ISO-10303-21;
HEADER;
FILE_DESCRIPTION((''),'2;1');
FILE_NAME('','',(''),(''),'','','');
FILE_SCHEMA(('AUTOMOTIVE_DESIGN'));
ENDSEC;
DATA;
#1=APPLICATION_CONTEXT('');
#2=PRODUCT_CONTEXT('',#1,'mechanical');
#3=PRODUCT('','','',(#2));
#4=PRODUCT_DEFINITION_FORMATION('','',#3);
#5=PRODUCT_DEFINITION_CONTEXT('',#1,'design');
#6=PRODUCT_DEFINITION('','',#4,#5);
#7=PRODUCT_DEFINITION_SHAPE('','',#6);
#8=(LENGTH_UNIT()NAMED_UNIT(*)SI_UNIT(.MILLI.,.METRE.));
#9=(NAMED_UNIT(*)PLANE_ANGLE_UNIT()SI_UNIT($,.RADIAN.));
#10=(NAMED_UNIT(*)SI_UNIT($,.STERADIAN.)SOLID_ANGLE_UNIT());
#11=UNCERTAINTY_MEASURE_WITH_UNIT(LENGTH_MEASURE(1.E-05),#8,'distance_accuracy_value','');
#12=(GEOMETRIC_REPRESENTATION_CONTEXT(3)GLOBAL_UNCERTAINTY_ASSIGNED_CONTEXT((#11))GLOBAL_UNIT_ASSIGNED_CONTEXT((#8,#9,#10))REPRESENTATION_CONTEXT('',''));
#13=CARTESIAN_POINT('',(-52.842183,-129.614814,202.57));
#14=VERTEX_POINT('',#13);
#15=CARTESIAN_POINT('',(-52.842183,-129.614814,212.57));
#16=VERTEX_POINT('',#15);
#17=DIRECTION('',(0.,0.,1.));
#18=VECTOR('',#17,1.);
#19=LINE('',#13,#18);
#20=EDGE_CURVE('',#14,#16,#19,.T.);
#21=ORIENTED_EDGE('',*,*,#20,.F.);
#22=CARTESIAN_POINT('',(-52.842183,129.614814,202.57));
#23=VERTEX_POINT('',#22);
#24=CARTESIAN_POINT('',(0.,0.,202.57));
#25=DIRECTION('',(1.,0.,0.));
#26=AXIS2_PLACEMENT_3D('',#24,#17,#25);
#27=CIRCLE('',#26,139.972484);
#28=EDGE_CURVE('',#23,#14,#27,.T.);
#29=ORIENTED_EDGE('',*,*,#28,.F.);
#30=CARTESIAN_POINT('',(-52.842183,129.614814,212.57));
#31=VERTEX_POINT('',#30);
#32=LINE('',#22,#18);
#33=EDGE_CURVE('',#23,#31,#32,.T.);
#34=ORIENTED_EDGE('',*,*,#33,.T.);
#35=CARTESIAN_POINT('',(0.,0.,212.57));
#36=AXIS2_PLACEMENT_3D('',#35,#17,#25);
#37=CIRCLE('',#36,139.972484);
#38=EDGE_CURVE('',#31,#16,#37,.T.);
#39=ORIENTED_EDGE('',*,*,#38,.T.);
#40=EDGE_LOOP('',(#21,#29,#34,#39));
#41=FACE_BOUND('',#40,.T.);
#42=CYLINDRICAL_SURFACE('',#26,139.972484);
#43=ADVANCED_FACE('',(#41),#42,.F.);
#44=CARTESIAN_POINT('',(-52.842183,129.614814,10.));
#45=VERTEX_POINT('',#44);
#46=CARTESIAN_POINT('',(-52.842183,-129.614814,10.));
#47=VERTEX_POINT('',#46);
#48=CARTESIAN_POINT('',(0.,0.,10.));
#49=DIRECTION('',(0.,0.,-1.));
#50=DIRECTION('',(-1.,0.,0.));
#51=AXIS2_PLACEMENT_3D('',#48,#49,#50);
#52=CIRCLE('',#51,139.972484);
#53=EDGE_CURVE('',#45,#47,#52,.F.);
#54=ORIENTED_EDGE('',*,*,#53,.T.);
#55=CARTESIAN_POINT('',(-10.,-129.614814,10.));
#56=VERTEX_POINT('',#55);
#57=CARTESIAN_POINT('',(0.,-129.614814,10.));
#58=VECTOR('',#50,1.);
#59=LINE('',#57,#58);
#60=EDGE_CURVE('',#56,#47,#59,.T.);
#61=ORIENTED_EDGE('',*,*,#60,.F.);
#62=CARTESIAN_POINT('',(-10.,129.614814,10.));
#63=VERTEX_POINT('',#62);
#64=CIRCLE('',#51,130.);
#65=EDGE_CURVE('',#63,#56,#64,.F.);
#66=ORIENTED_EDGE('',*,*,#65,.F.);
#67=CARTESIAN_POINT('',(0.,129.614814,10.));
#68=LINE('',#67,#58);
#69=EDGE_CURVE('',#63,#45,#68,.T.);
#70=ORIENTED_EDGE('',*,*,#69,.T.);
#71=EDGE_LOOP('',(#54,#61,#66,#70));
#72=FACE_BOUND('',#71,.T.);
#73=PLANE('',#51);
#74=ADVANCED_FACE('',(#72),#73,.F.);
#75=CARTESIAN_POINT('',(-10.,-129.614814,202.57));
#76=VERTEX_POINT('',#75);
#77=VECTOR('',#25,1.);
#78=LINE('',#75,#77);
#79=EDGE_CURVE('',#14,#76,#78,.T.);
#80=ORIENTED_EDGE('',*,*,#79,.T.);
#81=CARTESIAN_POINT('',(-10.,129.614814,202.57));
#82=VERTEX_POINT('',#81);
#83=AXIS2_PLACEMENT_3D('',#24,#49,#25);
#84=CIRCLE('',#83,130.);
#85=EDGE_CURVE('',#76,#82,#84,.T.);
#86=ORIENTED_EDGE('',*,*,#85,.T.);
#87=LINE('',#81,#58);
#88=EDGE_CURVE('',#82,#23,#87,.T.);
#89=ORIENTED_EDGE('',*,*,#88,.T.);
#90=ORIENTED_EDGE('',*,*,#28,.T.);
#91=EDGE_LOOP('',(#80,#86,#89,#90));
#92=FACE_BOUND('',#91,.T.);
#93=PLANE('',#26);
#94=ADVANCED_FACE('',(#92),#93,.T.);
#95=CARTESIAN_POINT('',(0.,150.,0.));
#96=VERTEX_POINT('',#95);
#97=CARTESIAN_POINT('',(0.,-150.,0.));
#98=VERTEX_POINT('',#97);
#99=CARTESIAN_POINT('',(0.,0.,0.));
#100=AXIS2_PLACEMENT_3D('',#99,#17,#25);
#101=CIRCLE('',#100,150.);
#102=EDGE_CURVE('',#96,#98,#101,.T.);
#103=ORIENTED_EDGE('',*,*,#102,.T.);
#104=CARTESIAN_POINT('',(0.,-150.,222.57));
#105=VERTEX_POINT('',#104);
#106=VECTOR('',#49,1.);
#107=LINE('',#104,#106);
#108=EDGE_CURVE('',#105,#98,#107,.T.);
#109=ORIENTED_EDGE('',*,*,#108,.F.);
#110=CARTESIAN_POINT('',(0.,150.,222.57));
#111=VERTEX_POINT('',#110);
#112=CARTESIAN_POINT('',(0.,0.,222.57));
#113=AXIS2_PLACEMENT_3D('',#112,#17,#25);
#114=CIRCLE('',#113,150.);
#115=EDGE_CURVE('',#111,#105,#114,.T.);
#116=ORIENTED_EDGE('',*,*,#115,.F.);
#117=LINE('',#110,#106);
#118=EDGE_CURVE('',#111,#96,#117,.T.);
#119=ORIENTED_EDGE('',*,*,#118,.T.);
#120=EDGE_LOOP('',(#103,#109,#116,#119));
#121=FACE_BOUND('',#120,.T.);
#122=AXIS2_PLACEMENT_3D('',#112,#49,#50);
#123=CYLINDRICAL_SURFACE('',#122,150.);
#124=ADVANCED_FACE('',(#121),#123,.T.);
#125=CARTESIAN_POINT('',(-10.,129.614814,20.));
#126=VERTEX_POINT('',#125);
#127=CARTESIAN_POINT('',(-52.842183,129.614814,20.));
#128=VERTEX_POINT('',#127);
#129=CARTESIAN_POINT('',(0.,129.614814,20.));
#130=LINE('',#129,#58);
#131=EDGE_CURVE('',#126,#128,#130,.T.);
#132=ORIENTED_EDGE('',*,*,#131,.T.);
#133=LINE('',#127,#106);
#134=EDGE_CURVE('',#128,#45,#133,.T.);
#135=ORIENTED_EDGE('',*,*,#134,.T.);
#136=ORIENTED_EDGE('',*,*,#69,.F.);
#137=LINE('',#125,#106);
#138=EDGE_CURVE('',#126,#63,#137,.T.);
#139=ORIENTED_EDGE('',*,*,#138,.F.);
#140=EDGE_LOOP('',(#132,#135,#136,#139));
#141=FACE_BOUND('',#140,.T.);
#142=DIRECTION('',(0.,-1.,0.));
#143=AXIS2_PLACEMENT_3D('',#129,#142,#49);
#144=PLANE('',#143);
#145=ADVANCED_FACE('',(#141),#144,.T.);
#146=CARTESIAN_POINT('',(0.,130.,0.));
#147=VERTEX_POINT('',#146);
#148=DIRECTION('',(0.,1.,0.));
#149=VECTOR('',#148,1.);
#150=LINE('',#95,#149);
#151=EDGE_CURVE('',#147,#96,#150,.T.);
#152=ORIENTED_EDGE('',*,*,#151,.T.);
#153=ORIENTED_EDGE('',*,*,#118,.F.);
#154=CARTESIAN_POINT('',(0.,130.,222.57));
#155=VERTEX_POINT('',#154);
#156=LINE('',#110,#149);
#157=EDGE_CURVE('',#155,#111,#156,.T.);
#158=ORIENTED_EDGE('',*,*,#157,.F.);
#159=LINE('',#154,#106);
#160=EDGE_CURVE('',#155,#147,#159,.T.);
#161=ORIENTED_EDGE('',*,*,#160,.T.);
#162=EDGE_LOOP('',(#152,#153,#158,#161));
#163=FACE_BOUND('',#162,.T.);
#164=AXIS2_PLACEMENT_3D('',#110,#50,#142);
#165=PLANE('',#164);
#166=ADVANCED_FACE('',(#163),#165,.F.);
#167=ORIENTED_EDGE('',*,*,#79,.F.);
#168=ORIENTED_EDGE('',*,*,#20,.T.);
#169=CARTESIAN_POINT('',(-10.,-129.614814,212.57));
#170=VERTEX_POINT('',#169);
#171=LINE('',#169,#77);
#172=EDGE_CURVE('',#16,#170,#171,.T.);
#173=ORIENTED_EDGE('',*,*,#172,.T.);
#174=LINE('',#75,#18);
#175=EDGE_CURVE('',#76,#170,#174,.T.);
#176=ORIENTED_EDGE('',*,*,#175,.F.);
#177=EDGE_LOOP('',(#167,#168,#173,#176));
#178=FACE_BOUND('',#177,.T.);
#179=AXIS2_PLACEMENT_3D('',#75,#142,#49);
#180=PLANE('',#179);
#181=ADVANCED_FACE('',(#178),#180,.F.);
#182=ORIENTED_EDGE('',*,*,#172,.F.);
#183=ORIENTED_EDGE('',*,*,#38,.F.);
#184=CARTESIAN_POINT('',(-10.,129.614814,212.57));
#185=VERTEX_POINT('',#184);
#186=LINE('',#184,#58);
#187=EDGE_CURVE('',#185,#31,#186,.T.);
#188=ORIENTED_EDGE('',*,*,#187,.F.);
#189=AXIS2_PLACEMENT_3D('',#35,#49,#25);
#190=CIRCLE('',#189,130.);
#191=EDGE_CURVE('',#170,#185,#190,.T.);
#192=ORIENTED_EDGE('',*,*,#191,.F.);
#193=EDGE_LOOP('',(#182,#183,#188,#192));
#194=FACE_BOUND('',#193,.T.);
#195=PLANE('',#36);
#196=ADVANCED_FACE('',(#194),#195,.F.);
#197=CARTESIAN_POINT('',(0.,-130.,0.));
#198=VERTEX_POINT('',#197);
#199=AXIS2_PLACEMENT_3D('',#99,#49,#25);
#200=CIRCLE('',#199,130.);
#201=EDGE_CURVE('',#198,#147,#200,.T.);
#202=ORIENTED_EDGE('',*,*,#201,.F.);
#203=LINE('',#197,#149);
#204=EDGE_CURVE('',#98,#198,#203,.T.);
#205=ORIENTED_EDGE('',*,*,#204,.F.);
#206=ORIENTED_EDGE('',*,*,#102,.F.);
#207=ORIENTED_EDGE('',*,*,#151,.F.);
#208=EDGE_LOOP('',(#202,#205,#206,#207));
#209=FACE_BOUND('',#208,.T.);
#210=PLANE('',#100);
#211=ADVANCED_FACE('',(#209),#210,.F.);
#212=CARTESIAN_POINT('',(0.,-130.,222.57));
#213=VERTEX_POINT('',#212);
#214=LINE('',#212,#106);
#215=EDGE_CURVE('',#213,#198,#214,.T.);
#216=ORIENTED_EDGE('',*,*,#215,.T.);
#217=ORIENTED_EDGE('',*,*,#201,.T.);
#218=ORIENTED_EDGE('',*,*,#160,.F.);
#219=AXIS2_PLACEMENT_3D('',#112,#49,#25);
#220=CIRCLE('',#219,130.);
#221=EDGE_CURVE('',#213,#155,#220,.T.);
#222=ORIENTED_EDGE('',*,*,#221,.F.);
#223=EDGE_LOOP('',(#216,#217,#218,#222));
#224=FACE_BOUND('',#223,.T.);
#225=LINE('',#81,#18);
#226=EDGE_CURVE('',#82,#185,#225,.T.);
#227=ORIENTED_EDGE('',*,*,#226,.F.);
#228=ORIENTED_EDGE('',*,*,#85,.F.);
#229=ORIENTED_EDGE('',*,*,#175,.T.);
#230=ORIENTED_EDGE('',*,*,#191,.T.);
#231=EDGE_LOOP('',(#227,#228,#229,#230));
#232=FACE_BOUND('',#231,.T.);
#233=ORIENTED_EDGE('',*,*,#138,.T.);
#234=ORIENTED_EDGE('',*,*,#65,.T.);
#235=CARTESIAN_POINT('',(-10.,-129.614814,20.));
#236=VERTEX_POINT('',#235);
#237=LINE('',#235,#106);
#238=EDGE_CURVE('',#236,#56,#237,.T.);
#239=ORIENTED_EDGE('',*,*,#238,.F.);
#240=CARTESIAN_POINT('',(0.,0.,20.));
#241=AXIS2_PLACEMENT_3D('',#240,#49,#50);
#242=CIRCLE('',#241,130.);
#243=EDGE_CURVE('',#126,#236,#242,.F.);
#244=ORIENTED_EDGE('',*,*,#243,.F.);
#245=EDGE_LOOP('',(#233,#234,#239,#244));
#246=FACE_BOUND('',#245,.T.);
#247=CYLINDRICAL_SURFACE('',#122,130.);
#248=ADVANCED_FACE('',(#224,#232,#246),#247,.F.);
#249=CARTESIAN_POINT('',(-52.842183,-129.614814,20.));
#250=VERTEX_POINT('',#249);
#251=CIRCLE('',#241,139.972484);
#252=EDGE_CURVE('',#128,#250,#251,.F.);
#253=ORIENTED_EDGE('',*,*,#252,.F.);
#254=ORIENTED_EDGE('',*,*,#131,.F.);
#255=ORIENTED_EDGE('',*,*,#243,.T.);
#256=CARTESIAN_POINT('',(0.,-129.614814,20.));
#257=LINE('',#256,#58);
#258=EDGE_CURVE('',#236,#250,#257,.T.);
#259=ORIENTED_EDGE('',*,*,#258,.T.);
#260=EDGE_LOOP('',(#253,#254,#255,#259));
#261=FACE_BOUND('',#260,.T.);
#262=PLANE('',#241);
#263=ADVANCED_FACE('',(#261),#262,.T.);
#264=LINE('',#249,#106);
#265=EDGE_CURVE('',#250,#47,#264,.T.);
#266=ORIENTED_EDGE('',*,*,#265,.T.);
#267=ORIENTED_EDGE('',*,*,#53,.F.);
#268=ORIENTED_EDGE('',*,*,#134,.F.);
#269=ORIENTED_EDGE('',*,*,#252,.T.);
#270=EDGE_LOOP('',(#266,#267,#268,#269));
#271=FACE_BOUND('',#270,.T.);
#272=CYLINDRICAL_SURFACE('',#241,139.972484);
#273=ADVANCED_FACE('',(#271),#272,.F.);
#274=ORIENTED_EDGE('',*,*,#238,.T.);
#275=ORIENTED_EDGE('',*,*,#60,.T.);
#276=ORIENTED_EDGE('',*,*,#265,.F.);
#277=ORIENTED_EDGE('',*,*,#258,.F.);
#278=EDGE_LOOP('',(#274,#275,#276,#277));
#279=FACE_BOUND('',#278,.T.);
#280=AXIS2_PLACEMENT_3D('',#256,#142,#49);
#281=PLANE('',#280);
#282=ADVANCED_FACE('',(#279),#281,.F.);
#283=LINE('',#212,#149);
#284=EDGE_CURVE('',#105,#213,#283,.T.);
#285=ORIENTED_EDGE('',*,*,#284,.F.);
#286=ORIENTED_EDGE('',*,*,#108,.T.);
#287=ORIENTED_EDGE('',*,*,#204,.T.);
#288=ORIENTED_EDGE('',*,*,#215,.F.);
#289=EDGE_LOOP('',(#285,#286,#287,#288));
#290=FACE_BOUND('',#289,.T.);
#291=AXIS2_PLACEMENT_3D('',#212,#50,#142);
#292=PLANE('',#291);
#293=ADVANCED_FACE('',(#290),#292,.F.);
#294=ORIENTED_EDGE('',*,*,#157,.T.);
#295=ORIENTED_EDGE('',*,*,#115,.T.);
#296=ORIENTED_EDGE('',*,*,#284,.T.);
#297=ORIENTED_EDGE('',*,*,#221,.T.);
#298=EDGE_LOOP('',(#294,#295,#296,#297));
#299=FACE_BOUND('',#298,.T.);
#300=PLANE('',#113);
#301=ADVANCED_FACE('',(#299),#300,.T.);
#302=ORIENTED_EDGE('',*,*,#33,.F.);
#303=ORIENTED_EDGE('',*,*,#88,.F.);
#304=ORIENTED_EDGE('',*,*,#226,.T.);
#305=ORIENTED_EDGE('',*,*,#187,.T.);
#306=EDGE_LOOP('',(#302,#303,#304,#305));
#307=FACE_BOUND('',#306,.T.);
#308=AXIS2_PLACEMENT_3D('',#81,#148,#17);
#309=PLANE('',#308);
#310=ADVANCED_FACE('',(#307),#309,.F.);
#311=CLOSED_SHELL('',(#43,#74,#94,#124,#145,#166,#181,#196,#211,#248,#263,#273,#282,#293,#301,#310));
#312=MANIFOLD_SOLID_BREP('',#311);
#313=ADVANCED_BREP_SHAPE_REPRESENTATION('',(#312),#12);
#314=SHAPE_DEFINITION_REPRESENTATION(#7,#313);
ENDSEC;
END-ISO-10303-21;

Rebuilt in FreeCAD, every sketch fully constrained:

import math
import FreeCAD as App
import Part
import Sketcher
Q = App.Units.Quantity

doc = App.newDocument("Part")
body = doc.addObject("PartDesign::Body", "Body")

# Sketch on XY plane
sketch1 = body.newObject("Sketcher::SketchObject", "Sketch")
sketch1.AttachmentSupport = (doc.getObject("XY_Plane"), [""])
sketch1.MapMode = "FlatFace"
sketch1.addGeometry(Part.LineSegment(App.Vector(0, 130, 0), App.Vector(0, 150, 0)), False)
sketch1.addGeometry(Part.ArcOfCircle(Part.Circle(App.Vector(0, 0, 0), App.Vector(0, 0, 1), 150), math.radians(90), math.radians(270)), False)
sketch1.addGeometry(Part.LineSegment(App.Vector(0, -150, 0), App.Vector(0, -130, 0)), False)
sketch1.addGeometry(Part.ArcOfCircle(Part.Circle(App.Vector(0, 0, 0), App.Vector(0, 0, 1), 130), math.radians(90), math.radians(270)), False)
sketch1.addConstraint(Sketcher.Constraint("Coincident", 0, 2, 1, 1))
sketch1.addConstraint(Sketcher.Constraint("Coincident", 1, 2, 2, 1))
sketch1.addConstraint(Sketcher.Constraint("Coincident", 2, 2, 3, 2))
sketch1.addConstraint(Sketcher.Constraint("Coincident", 3, 1, 0, 1))
sketch1.addConstraint(Sketcher.Constraint("Vertical", 0))
sketch1.addConstraint(Sketcher.Constraint("Vertical", 2))
sketch1.addConstraint(Sketcher.Constraint("Coincident", 1, 3, -1, 1))
sketch1.addConstraint(Sketcher.Constraint("Coincident", 3, 3, -1, 1))
sketch1.addConstraint(Sketcher.Constraint("PointOnObject", 0, 2, -2))
sketch1.addConstraint(Sketcher.Constraint("PointOnObject", 1, 2, -2))
sketch1.addConstraint(Sketcher.Constraint("Radius", 1, Q("150 mm")))
sketch1.addConstraint(Sketcher.Constraint("Radius", 3, Q("130 mm")))
pad1 = body.newObject("PartDesign::Pad", "Pad")
pad1.Profile = sketch1
pad1.Length = 222.57

# Sketch on XY plane
sketch2 = body.newObject("Sketcher::SketchObject", "Sketch001")
sketch2.AttachmentSupport = (doc.getObject("XY_Plane"), [""])
sketch2.MapMode = "FlatFace"
sketch2.AttachmentOffset = App.Placement(App.Vector(0, 0, 212.57), App.Rotation())
sketch2.addGeometry(Part.LineSegment(App.Vector(-10, 130, 0), App.Vector(-53, 130, 0)), False)
sketch2.addGeometry(Part.ArcOfCircle(Part.Circle(App.Vector(0, 0, 0), App.Vector(0, 0, 1), 140), math.radians(112), math.radians(248)), False)
sketch2.addGeometry(Part.LineSegment(App.Vector(-53, -130, 0), App.Vector(-10, -130, 0)), False)
sketch2.addGeometry(Part.ArcOfCircle(Part.Circle(App.Vector(0, 0, 0), App.Vector(0, 0, 1), 130), math.radians(94), math.radians(266)), False)
sketch2.addConstraint(Sketcher.Constraint("Coincident", 0, 2, 1, 1))
sketch2.addConstraint(Sketcher.Constraint("Coincident", 1, 2, 2, 1))
sketch2.addConstraint(Sketcher.Constraint("Coincident", 2, 2, 3, 2))
sketch2.addConstraint(Sketcher.Constraint("Coincident", 3, 1, 0, 1))
sketch2.addConstraint(Sketcher.Constraint("Horizontal", 0))
sketch2.addConstraint(Sketcher.Constraint("Horizontal", 2))
sketch2.addConstraint(Sketcher.Constraint("Coincident", 1, 3, -1, 1))
sketch2.addConstraint(Sketcher.Constraint("Coincident", 3, 3, -1, 1))
sketch2.addConstraint(Sketcher.Constraint("Vertical", 0, 2, 1, 2))
sketch2.addConstraint(Sketcher.Constraint("Radius", 3, Q("130 mm")))
sketch2.addConstraint(Sketcher.Constraint("DistanceX", 2, 2, -1, 1, Q("10 mm")))
sketch2.addConstraint(Sketcher.Constraint("Radius", 1, Q("139.972484 mm")))
pocket1 = body.newObject("PartDesign::Pocket", "Pocket")
pocket1.Profile = sketch2
pocket1.Length = 10

# Sketch on XY plane
sketch3 = body.newObject("Sketcher::SketchObject", "Sketch002")
sketch3.AttachmentSupport = (doc.getObject("XY_Plane"), [""])
sketch3.MapMode = "FlatFace"
sketch3.AttachmentOffset = App.Placement(App.Vector(0, 0, 10), App.Rotation())
sketch3.addGeometry(Part.LineSegment(App.Vector(-53, 130, 0), App.Vector(-10, 130, 0)), False)
sketch3.addGeometry(Part.ArcOfCircle(Part.Circle(App.Vector(0, 0, 0), App.Vector(0, 0, 1), 130), math.radians(94), math.radians(266)), False)
sketch3.addGeometry(Part.LineSegment(App.Vector(-10, -130, 0), App.Vector(-53, -130, 0)), False)
sketch3.addGeometry(Part.ArcOfCircle(Part.Circle(App.Vector(0, 0, 0), App.Vector(0, 0, 1), 140), math.radians(112), math.radians(248)), False)
sketch3.addConstraint(Sketcher.Constraint("Coincident", 0, 2, 1, 1))
sketch3.addConstraint(Sketcher.Constraint("Coincident", 1, 2, 2, 1))
sketch3.addConstraint(Sketcher.Constraint("Coincident", 2, 2, 3, 2))
sketch3.addConstraint(Sketcher.Constraint("Coincident", 3, 1, 0, 1))
sketch3.addConstraint(Sketcher.Constraint("Horizontal", 0))
sketch3.addConstraint(Sketcher.Constraint("Horizontal", 2))
sketch3.addConstraint(Sketcher.Constraint("Coincident", 1, 3, -1, 1))
sketch3.addConstraint(Sketcher.Constraint("Coincident", 3, 3, -1, 1))
sketch3.addConstraint(Sketcher.Constraint("Vertical", 0, 2, 1, 2))
sketch3.addConstraint(Sketcher.Constraint("Radius", 1, Q("130 mm")))
sketch3.addConstraint(Sketcher.Constraint("DistanceX", 0, 2, -1, 1, Q("10 mm")))
sketch3.addConstraint(Sketcher.Constraint("Radius", 3, Q("139.972484 mm")))
pocket2 = body.newObject("PartDesign::Pocket", "Pocket001")
pocket2.Profile = sketch3
pocket2.Length = 10
pocket2.Reversed = True

doc.recompute()
